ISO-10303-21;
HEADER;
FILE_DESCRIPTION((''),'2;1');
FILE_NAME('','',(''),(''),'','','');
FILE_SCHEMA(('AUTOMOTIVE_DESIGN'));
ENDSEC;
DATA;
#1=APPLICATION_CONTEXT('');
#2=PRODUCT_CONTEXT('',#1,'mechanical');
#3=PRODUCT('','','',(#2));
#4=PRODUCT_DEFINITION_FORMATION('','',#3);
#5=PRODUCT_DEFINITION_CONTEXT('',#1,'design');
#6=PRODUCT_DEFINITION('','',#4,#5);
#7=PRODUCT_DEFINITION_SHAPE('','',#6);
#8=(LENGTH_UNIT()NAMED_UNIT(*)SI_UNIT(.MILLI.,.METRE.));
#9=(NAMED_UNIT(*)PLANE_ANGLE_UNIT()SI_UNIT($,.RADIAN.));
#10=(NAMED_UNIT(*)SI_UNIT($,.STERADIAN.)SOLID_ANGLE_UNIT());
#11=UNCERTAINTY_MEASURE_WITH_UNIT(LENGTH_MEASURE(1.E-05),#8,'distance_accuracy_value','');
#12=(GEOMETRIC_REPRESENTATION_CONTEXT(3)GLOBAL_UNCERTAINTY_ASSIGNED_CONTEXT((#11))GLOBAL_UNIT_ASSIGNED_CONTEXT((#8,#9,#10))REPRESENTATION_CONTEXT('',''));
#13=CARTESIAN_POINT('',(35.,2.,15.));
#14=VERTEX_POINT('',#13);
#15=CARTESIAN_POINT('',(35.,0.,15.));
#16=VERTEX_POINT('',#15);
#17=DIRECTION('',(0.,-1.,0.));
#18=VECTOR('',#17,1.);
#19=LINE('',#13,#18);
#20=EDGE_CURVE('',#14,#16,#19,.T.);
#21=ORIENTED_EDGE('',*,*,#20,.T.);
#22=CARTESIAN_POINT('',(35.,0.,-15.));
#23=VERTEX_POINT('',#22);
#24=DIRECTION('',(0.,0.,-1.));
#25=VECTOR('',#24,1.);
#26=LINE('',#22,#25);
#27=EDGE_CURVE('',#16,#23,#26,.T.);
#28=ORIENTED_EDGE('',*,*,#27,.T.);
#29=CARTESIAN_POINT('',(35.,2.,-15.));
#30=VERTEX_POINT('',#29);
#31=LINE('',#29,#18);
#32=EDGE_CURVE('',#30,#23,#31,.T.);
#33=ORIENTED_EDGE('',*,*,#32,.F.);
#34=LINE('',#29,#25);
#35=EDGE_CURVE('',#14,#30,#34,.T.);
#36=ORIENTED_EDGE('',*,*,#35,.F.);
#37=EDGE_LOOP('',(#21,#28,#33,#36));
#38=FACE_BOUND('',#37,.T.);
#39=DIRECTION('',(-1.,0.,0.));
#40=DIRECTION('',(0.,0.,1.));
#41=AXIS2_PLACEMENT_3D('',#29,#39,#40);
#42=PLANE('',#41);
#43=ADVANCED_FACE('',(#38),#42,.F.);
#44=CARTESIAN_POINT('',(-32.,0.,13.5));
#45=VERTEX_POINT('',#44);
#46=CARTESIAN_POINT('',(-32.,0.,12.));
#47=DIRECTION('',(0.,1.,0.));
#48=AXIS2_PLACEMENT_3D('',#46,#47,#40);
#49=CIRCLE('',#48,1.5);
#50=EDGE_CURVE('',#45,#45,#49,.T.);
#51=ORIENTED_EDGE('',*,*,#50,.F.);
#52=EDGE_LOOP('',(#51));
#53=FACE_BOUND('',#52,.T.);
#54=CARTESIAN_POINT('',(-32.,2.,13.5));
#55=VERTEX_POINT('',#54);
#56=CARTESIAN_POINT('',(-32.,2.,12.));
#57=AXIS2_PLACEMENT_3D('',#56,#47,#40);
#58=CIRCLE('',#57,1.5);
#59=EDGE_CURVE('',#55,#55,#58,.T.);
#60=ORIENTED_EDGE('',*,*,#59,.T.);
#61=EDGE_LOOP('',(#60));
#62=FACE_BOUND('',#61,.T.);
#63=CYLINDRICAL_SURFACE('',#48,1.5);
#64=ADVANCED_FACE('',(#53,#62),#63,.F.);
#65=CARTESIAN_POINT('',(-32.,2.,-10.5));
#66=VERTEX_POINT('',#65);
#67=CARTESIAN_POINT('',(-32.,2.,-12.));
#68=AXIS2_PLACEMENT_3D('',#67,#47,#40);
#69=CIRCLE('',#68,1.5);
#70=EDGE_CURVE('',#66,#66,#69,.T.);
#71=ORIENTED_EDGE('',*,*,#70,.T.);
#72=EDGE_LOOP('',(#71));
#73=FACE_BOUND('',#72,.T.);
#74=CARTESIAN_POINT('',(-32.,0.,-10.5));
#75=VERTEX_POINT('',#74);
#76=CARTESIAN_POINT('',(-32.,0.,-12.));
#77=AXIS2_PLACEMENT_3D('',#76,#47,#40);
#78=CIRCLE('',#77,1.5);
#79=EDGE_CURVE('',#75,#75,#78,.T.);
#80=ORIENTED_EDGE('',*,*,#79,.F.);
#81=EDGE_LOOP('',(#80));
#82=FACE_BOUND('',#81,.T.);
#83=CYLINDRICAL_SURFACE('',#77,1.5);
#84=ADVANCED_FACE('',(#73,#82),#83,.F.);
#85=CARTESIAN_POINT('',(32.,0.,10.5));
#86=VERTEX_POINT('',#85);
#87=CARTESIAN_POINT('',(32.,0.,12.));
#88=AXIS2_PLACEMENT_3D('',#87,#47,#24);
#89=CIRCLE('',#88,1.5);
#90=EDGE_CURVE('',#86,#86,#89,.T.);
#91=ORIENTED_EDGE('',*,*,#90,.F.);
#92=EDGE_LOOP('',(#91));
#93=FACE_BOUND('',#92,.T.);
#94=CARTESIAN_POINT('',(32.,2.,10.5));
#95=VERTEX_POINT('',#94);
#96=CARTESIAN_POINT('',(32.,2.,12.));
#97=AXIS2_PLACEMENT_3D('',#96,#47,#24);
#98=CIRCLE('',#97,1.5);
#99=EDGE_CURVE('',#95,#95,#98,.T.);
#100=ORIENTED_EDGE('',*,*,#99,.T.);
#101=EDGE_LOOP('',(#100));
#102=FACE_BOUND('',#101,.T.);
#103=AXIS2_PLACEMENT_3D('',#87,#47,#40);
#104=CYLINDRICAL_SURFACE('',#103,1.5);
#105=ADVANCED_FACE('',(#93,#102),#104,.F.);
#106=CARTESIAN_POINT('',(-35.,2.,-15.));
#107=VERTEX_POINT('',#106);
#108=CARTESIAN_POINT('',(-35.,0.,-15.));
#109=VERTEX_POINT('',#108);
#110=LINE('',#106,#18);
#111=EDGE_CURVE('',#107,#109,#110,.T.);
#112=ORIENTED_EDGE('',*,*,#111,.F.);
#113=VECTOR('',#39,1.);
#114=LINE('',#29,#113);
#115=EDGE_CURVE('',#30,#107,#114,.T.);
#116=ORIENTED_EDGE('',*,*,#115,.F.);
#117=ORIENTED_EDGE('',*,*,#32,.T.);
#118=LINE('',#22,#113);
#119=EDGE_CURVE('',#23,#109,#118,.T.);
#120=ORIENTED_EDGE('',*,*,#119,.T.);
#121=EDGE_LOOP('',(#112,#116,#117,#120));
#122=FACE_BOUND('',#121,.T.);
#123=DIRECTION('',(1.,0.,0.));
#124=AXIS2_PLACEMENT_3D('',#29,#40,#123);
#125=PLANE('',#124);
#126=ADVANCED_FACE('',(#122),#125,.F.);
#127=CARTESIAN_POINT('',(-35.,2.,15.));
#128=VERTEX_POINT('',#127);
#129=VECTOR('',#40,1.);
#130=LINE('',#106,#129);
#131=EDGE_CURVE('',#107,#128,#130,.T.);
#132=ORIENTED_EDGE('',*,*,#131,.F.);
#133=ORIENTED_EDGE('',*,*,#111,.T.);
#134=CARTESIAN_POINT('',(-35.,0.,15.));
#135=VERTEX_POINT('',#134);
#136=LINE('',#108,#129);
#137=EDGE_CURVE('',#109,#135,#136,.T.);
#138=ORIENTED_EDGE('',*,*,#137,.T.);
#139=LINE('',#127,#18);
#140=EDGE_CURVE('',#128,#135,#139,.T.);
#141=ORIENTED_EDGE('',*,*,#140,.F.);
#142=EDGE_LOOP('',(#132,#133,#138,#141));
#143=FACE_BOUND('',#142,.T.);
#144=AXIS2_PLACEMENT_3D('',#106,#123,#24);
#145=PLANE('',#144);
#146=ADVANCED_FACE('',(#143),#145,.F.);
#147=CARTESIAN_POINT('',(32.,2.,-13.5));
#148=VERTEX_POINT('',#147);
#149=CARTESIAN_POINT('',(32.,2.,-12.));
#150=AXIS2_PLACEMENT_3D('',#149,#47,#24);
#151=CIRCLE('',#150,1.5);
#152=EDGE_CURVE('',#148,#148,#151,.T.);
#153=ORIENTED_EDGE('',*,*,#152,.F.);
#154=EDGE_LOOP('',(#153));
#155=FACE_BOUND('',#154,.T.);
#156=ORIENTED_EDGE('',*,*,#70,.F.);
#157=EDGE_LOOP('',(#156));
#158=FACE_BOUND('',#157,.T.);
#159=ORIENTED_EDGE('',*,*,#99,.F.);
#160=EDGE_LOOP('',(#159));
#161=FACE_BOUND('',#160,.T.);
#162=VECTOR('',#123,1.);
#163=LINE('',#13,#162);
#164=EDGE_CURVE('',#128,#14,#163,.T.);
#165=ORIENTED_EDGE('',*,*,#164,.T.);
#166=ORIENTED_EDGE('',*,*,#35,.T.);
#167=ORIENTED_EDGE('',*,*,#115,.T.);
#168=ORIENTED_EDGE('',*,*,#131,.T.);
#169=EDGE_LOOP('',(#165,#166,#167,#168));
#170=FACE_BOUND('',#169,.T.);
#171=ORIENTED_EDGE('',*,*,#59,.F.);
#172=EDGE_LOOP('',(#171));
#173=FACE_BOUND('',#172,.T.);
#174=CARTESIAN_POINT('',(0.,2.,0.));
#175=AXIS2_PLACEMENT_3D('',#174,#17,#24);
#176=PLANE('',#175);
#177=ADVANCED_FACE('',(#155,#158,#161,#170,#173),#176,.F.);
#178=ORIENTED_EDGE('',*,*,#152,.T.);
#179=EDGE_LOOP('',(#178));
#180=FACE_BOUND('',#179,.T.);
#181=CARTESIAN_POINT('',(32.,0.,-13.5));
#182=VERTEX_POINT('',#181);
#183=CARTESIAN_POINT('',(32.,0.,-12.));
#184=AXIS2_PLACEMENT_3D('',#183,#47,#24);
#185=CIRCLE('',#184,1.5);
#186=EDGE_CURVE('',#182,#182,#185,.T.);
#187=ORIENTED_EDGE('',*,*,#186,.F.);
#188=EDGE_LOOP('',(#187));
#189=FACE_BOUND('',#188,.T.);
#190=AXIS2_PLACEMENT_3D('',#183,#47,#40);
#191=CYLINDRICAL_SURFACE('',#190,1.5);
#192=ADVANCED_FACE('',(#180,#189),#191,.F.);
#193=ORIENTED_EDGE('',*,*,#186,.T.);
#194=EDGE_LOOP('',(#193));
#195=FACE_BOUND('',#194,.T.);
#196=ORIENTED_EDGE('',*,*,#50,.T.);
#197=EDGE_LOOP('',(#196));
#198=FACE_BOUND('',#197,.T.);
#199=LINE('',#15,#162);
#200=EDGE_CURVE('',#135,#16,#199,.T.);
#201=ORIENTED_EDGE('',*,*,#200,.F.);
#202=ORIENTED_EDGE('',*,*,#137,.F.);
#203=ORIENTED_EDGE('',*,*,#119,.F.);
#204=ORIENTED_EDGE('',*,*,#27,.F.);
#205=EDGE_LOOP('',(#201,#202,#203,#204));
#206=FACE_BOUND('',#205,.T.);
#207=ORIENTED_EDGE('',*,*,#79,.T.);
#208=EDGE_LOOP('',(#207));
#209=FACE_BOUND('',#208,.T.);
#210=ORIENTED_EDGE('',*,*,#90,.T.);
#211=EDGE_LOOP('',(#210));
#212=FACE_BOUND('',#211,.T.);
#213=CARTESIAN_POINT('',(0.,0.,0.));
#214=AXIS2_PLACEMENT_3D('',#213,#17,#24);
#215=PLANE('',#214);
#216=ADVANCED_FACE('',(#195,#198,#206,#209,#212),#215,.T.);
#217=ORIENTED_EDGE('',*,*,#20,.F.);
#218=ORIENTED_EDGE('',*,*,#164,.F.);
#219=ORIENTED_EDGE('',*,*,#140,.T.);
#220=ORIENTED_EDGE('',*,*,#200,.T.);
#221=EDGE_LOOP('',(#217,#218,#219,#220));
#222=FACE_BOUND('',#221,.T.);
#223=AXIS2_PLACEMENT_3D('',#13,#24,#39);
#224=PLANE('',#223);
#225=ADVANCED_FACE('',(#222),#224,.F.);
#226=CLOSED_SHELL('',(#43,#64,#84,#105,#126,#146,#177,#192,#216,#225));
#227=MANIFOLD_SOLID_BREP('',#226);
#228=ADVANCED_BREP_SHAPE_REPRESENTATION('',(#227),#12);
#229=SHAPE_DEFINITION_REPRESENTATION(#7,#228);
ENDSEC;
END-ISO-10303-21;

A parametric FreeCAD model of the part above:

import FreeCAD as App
import Part
import Sketcher
Q = App.Units.Quantity


def add_polygon(sketch, points):
    """Adds a closed chain of lines whose ends are joined by coincident constraints."""
    first, n = sketch.GeometryCount, len(points)
    for a, b in zip(points, points[1:] + points[:1]):
        sketch.addGeometry(Part.LineSegment(App.Vector(*a, 0), App.Vector(*b, 0)), False)
    for i in range(n):
        sketch.addConstraint(Sketcher.Constraint("Coincident", first + i, 2, first + (i + 1) % n, 1))

doc = App.newDocument("Part")
body = doc.addObject("PartDesign::Body", "Body")

# Sketch on XZ plane
sketch1 = doc.addObject("Sketcher::SketchObject", "Sketch")
body.addObject(sketch1)
sketch1.AttachmentSupport = (doc.XZ_Plane, [""])
sketch1.MapMode = "FlatFace"
add_polygon(sketch1, [(-35, -15), (-35, 15), (35, 15), (35, -15)])  # lines 0-3
sketch1.addConstraint([
    Sketcher.Constraint("Vertical", 0),
    Sketcher.Constraint("Horizontal", 1),
    Sketcher.Constraint("Vertical", 2),
    Sketcher.Constraint("Horizontal", 3),
    Sketcher.Constraint("Symmetric", 0, 2, 2, 2, -1, 1),
    Sketcher.Constraint("DistanceX", 1, 1, 1, 2, Q("70 mm")),
    Sketcher.Constraint("DistanceY", 0, 1, 0, 2, Q("30 mm")),
])
pad1 = doc.addObject("PartDesign::Pad", "Pad")
body.addObject(pad1)
pad1.Profile = sketch1
pad1.Length = 2
pad1.Reversed = True

# Sketch on XZ plane
sketch2 = doc.addObject("Sketcher::SketchObject", "Sketch001")
body.addObject(sketch2)
sketch2.AttachmentSupport = (doc.XZ_Plane, [""])
sketch2.MapMode = "FlatFace"
sketch2.AttachmentOffset = App.Placement(App.Vector(0, 0, -2), App.Rotation())
sketch2.addGeometry([
    Part.Circle(App.Vector(-32, -12, 0), App.Vector(0, 0, 1), 1.5),
    Part.Circle(App.Vector(-32, 12, 0), App.Vector(0, 0, 1), 1.5),
    Part.Circle(App.Vector(32, 12, 0), App.Vector(0, 0, 1), 1.5),
    Part.Circle(App.Vector(32, -12, 0), App.Vector(0, 0, 1), 1.5),
], False)
sketch2.addConstraint([
    Sketcher.Constraint("Equal", 0, 1),
    Sketcher.Constraint("Equal", 1, 2),
    Sketcher.Constraint("Equal", 2, 3),
    Sketcher.Constraint("Symmetric", 0, 3, 2, 3, -1, 1),
    Sketcher.Constraint("Symmetric", 1, 3, 3, 3, -1, 1),
    Sketcher.Constraint("Symmetric", 1, 3, 2, 3, -2),
    Sketcher.Constraint("Diameter", 0, Q("3 mm")),
    Sketcher.Constraint("DistanceX", 0, 3, -1, 1, Q("32 mm")),
    Sketcher.Constraint("DistanceY", 0, 3, -1, 1, Q("12 mm")),
])
pocket1 = doc.addObject("PartDesign::Pocket", "Pocket")
body.addObject(pocket1)
pocket1.Profile = sketch2
pocket1.Length = 2
pocket1.Reversed = True

doc.recompute()
